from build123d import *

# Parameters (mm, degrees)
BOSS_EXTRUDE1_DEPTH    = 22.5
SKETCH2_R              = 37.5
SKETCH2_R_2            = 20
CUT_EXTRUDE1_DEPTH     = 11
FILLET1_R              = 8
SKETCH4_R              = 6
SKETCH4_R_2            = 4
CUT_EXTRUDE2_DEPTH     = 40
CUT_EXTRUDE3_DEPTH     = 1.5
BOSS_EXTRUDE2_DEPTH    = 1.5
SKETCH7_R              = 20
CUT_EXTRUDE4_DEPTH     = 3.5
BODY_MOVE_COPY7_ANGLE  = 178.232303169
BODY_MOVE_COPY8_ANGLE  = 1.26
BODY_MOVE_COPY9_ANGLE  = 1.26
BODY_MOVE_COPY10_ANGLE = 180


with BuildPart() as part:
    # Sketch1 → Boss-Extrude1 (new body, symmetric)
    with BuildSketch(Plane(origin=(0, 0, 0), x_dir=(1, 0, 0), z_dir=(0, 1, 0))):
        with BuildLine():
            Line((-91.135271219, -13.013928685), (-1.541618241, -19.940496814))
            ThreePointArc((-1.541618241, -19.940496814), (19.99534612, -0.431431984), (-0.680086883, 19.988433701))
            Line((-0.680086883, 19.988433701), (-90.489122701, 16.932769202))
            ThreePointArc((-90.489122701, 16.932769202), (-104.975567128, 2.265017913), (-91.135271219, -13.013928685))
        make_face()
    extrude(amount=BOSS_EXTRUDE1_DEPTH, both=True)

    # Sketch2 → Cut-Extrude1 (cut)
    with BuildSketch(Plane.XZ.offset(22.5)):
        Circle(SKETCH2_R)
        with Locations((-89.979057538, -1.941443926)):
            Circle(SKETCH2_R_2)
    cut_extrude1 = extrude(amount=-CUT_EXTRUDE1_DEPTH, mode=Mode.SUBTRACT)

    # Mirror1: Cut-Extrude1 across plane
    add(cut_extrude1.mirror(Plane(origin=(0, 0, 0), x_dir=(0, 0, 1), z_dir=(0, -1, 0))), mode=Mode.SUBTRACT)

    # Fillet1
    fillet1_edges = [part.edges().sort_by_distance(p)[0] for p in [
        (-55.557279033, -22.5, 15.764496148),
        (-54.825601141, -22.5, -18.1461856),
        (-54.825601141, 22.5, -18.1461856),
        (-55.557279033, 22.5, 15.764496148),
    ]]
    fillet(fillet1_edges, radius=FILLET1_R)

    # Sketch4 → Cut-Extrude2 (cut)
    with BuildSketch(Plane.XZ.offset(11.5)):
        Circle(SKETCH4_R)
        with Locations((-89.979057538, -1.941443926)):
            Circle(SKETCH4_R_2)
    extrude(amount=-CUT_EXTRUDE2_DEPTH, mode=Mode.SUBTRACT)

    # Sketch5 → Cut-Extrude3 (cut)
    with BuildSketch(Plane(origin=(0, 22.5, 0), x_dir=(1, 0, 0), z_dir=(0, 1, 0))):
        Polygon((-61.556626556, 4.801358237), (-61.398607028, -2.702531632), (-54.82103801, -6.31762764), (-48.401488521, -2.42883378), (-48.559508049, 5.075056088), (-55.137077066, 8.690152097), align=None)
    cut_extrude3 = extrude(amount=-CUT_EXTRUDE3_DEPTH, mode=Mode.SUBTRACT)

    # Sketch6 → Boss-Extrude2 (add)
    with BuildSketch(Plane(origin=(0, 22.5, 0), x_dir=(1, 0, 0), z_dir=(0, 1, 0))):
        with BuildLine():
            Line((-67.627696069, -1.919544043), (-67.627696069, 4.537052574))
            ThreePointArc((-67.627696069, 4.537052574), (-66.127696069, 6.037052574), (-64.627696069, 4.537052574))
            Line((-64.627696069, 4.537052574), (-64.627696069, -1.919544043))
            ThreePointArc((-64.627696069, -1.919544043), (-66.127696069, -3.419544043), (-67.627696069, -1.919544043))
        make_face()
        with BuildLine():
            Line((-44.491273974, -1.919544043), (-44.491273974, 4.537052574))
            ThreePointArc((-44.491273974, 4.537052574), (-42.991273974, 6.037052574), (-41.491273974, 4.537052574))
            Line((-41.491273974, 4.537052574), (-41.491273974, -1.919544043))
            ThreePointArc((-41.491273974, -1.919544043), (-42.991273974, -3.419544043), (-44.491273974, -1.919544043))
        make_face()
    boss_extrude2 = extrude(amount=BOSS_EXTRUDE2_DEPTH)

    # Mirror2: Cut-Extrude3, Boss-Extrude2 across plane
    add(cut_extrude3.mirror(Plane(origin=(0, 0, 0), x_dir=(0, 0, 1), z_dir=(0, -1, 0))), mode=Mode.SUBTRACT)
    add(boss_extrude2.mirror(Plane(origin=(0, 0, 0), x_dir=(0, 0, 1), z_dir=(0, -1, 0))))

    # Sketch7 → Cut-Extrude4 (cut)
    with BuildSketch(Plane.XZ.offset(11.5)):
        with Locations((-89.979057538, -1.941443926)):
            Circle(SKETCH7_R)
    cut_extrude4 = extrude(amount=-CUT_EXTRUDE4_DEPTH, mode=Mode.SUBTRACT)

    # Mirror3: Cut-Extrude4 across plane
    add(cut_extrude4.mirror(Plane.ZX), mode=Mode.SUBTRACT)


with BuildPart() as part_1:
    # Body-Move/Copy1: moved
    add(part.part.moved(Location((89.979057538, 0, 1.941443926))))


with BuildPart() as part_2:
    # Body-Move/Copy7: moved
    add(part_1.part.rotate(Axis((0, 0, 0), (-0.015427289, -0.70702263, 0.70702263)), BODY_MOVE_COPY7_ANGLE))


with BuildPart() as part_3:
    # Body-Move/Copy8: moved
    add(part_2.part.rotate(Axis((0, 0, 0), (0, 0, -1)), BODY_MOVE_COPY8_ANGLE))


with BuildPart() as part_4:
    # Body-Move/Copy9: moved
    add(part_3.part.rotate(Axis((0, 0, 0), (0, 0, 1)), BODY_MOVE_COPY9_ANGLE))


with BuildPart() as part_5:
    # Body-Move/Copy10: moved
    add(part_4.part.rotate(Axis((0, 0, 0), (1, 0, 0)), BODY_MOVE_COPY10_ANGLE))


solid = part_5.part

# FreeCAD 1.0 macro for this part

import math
import FreeCAD as App
import Part
import Sketcher
from FreeCAD import Vector
Q = App.Units.Quantity


def edges_at(feature, points):
    """Names of the edges that pass closest to the given points."""
    edges = feature.Shape.Edges
    near = lambda p: min(range(len(edges)), key=lambda i: edges[i].distToShape(Part.Vertex(*p))[0])
    return sorted({f"Edge{near(p) + 1}" for p in points})


def add_polygon(sketch, points):
    """Adds a closed chain of lines whose ends are joined by coincident constraints."""
    first, n = sketch.GeometryCount, len(points)
    for a, b in zip(points, points[1:] + points[:1]):
        sketch.addGeometry(Part.LineSegment(App.Vector(*a, 0), App.Vector(*b, 0)), False)
    for i in range(n):
        sketch.addConstraint(Sketcher.Constraint("Coincident", first + i, 2, first + (i + 1) % n, 1))

doc = App.newDocument("Part")
body = doc.addObject("PartDesign::Body", "Body")

# Sketch on XZ plane
sketch1 = doc.addObject("Sketcher::SketchObject", "Sketch")
body.addObject(sketch1)
sketch1.AttachmentSupport = (doc.XZ_Plane, [""])
sketch1.MapMode = "FlatFace"
sketch1.addGeometry(Part.LineSegment(Vector(-91.135271, 13.013929, 0), Vector(-1.541618, 19.940497, 0)), False)
sketch1.addGeometry(Part.ArcOfCircle(Part.Circle(Vector(0, 0, 0), Vector(0, 0, 1), 20), math.radians(-91.948681), math.radians(94.420796)), False)
sketch1.addGeometry(Part.LineSegment(Vector(-0.680087, -19.988434, 0), Vector(-90.489123, -16.932769, 0)), False)
sketch1.addGeometry(Part.ArcOfCircle(Part.Circle(Vector(-89.979058, -1.941444, 0), Vector(0, 0, 1), 15), math.radians(94.420796), math.radians(268.051319)), False)
sketch1.addConstraint(Sketcher.Constraint("Tangent", 0, 2, 1, 2))
sketch1.addConstraint(Sketcher.Constraint("Tangent", 1, 1, 2, 1))
sketch1.addConstraint(Sketcher.Constraint("Tangent", 2, 2, 3, 2))
sketch1.addConstraint(Sketcher.Constraint("Tangent", 3, 1, 0, 1))
sketch1.addConstraint(Sketcher.Constraint("Coincident", 1, 3, -1, 1))
sketch1.addConstraint(Sketcher.Constraint("Radius", 1, Q("20 mm")))
sketch1.addConstraint(Sketcher.Constraint("Radius", 3, Q("15 mm")))
sketch1.addConstraint(Sketcher.Constraint("DistanceX", 0, 2, -1, 1, Q("1.541618 mm")))
sketch1.addConstraint(Sketcher.Constraint("DistanceY", 2, 2, -1, 1, Q("16.932769 mm")))
pad1 = doc.addObject("PartDesign::Pad", "Pad")
body.addObject(pad1)
pad1.Profile = sketch1
pad1.Length = 45
pad1.Midplane = True

# Sketch on XZ plane
sketch2 = doc.addObject("Sketcher::SketchObject", "Sketch001")
body.addObject(sketch2)
sketch2.AttachmentSupport = (doc.XZ_Plane, [""])
sketch2.MapMode = "FlatFace"
sketch2.AttachmentOffset = App.Placement(Vector(0, 0, 22.5), App.Rotation())
sketch2.addGeometry(Part.Circle(Vector(0, 0, 0), Vector(0, 0, 1), 37.5), False)
sketch2.addGeometry(Part.Circle(Vector(-89.979058, -1.941444, 0), Vector(0, 0, 1), 20), False)
sketch2.addConstraint(Sketcher.Constraint("Coincident", 0, 3, -1, 1))
sketch2.addConstraint(Sketcher.Constraint("Diameter", 0, Q("75 mm")))
sketch2.addConstraint(Sketcher.Constraint("Diameter", 1, Q("40 mm")))
sketch2.addConstraint(Sketcher.Constraint("DistanceX", 1, 3, -1, 1, Q("89.979058 mm")))
sketch2.addConstraint(Sketcher.Constraint("DistanceY", 1, 3, -1, 1, Q("1.941444 mm")))
pocket1 = doc.addObject("PartDesign::Pocket", "Pocket")
body.addObject(pocket1)
pocket1.Profile = sketch2
pocket1.Length = 11
doc.recompute()

mirrored = doc.addObject("PartDesign::Mirrored", "Mirrored")
body.addObject(mirrored)
mirrored.Originals = [pocket1]
mirrored.MirrorPlane = (doc.XZ_Plane, [""])
body.Tip = mirrored
doc.recompute()

fillet = doc.addObject("PartDesign::Fillet", "Fillet")
body.addObject(fillet)
fillet.Base = (mirrored, edges_at(mirrored, [
    (-55.557, -22.5, 15.764),
    (-54.826, -22.5, -18.146),
    (-54.826, 22.5, -18.146),
    (-55.557, 22.5, 15.764),
]))
fillet.Radius = 8

# Sketch on XZ plane
sketch3 = doc.addObject("Sketcher::SketchObject", "Sketch002")
body.addObject(sketch3)
sketch3.AttachmentSupport = (doc.XZ_Plane, [""])
sketch3.MapMode = "FlatFace"
sketch3.AttachmentOffset = App.Placement(Vector(0, 0, 11.5), App.Rotation())
sketch3.addGeometry(Part.Circle(Vector(0, 0, 0), Vector(0, 0, 1), 6), False)
sketch3.addGeometry(Part.Circle(Vector(-89.979058, -1.941444, 0), Vector(0, 0, 1), 4), False)
sketch3.addConstraint(Sketcher.Constraint("Coincident", 0, 3, -1, 1))
sketch3.addConstraint(Sketcher.Constraint("Diameter", 0, Q("12 mm")))
sketch3.addConstraint(Sketcher.Constraint("Diameter", 1, Q("8 mm")))
sketch3.addConstraint(Sketcher.Constraint("DistanceX", 1, 3, -1, 1, Q("89.979058 mm")))
sketch3.addConstraint(Sketcher.Constraint("DistanceY", 1, 3, -1, 1, Q("1.941444 mm")))
pocket2 = doc.addObject("PartDesign::Pocket", "Pocket001")
body.addObject(pocket2)
pocket2.Profile = sketch3
pocket2.Length = 40

# Sketch on XZ plane
sketch4 = doc.addObject("Sketcher::SketchObject", "Sketch003")
body.addObject(sketch4)
sketch4.AttachmentSupport = (doc.XZ_Plane, [""])
sketch4.MapMode = "FlatFace"
sketch4.AttachmentOffset = App.Placement(Vector(0, 0, -22.5), App.Rotation())
add_polygon(sketch4, [(-61.556627, -4.801358), (-61.398607, 2.702532), (-54.821038, 6.317628), (-48.401489, 2.428834), (-48.559508, -5.075056), (-55.137077, -8.690152)])  # lines 0-5
sketch4.addConstraint(Sketcher.Constraint("Parallel", 0, 3))
sketch4.addConstraint(Sketcher.Constraint("Parallel", 1, 4))
sketch4.addConstraint(Sketcher.Constraint("Parallel", 2, 5))
sketch4.addConstraint(Sketcher.Constraint("Equal", 0, 1))
sketch4.addConstraint(Sketcher.Constraint("Equal", 1, 2))
sketch4.addConstraint(Sketcher.Constraint("Equal", 2, 3))
sketch4.addConstraint(Sketcher.Constraint("DistanceX", 0, 2, 3, 2, Q("12.839099 mm")))
sketch4.addConstraint(Sketcher.Constraint("DistanceY", -1, 1, 0, 2, Q("2.702532 mm")))
sketch4.addConstraint(Sketcher.Constraint("DistanceX", 1, 2, -1, 1, Q("54.821038 mm")))
sketch4.addConstraint(Sketcher.Constraint("DistanceX", 2, 2, -1, 1, Q("48.401489 mm")))
sketch4.addConstraint(Sketcher.Constraint("DistanceX", 3, 2, -1, 1, Q("48.559508 mm")))
sketch4.addConstraint(Sketcher.Constraint("DistanceY", 5, 2, -1, 1, Q("4.801358 mm")))
pocket3 = doc.addObject("PartDesign::Pocket", "Pocket002")
body.addObject(pocket3)
pocket3.Profile = sketch4
pocket3.Length = 1.5
pocket3.Reversed = True

# Sketch on XZ plane
sketch5 = doc.addObject("Sketcher::SketchObject", "Sketch004")
body.addObject(sketch5)
sketch5.AttachmentSupport = (doc.XZ_Plane, [""])
sketch5.MapMode = "FlatFace"
sketch5.AttachmentOffset = App.Placement(Vector(0, 0, -22.5), App.Rotation())
sketch5.addGeometry(Part.LineSegment(Vector(-67.627696, -4.537053, 0), Vector(-67.627696, 1.919544, 0)), False)
sketch5.addGeometry(Part.ArcOfCircle(Part.Circle(Vector(-66.127696, 1.919544, 0), Vector(0, 0, 1), 1.5), math.radians(0), math.radians(180)), False)
sketch5.addGeometry(Part.LineSegment(Vector(-64.627696, 1.919544, 0), Vector(-64.627696, -4.537053, 0)), False)
sketch5.addGeometry(Part.ArcOfCircle(Part.Circle(Vector(-66.127696, -4.537053, 0), Vector(0, 0, 1), 1.5), math.radians(180), math.radians(360)), False)
sketch5.addGeometry(Part.LineSegment(Vector(-44.491274, -4.537053, 0), Vector(-44.491274, 1.919544, 0)), False)
sketch5.addGeometry(Part.ArcOfCircle(Part.Circle(Vector(-42.991274, 1.919544, 0), Vector(0, 0, 1), 1.5), math.radians(0), math.radians(180)), False)
sketch5.addGeometry(Part.LineSegment(Vector(-41.491274, 1.919544, 0), Vector(-41.491274, -4.537053, 0)), False)
sketch5.addGeometry(Part.ArcOfCircle(Part.Circle(Vector(-42.991274, -4.537053, 0), Vector(0, 0, 1), 1.5), math.radians(180), math.radians(360)), False)
sketch5.addConstraint(Sketcher.Constraint("Tangent", 0, 2, 1, 2))
sketch5.addConstraint(Sketcher.Constraint("Tangent", 1, 1, 2, 1))
sketch5.addConstraint(Sketcher.Constraint("Tangent", 2, 2, 3, 2))
sketch5.addConstraint(Sketcher.Constraint("Tangent", 3, 1, 0, 1))
sketch5.addConstraint(Sketcher.Constraint("Tangent", 4, 2, 5, 2))
sketch5.addConstraint(Sketcher.Constraint("Tangent", 5, 1, 6, 1))
sketch5.addConstraint(Sketcher.Constraint("Tangent", 6, 2, 7, 2))
sketch5.addConstraint(Sketcher.Constraint("Tangent", 7, 1, 4, 1))
sketch5.addConstraint(Sketcher.Constraint("Vertical", 0))
sketch5.addConstraint(Sketcher.Constraint("Vertical", 2))
sketch5.addConstraint(Sketcher.Constraint("Vertical", 4))
sketch5.addConstraint(Sketcher.Constraint("Vertical", 6))
sketch5.addConstraint(Sketcher.Constraint("Equal", 3, 5))
sketch5.addConstraint(Sketcher.Constraint("Horizontal", 1, 3, 5, 3))
sketch5.addConstraint(Sketcher.Constraint("Horizontal", 3, 3, 7, 3))
sketch5.addConstraint(Sketcher.Constraint("Radius", 1, Q("1.5 mm")))
sketch5.addConstraint(Sketcher.Constraint("DistanceY", 0, 1, 0, 2, Q("6.456597 mm")))
sketch5.addConstraint(Sketcher.Constraint("DistanceX", 1, 3, -1, 1, Q("66.127696 mm")))
sketch5.addConstraint(Sketcher.Constraint("DistanceY", -1, 1, 1, 3, Q("1.919544 mm")))
sketch5.addConstraint(Sketcher.Constraint("DistanceX", 5, 3, -1, 1, Q("42.991274 mm")))
pad2 = doc.addObject("PartDesign::Pad", "Pad001")
body.addObject(pad2)
pad2.Profile = sketch5
pad2.Length = 1.5
pad2.Reversed = True
doc.recompute()

mirrored2 = doc.addObject("PartDesign::Mirrored", "Mirrored001")
body.addObject(mirrored2)
mirrored2.Originals = [pocket3, pad2]
mirrored2.MirrorPlane = (doc.XZ_Plane, [""])
body.Tip = mirrored2

# Sketch on XZ plane
sketch6 = doc.addObject("Sketcher::SketchObject", "Sketch005")
body.addObject(sketch6)
sketch6.AttachmentSupport = (doc.XZ_Plane, [""])
sketch6.MapMode = "FlatFace"
sketch6.AttachmentOffset = App.Placement(Vector(0, 0, 11.5), App.Rotation())
sketch6.addGeometry(Part.Circle(Vector(-89.979058, -1.941444, 0), Vector(0, 0, 1), 20), False)
sketch6.addConstraint(Sketcher.Constraint("Diameter", 0, Q("40 mm")))
sketch6.addConstraint(Sketcher.Constraint("DistanceX", 0, 3, -1, 1, Q("89.979058 mm")))
sketch6.addConstraint(Sketcher.Constraint("DistanceY", 0, 3, -1, 1, Q("1.941444 mm")))
pocket4 = doc.addObject("PartDesign::Pocket", "Pocket003")
body.addObject(pocket4)
pocket4.Profile = sketch6
pocket4.Length = 3.5
doc.recompute()

mirrored3 = doc.addObject("PartDesign::Mirrored", "Mirrored002")
body.addObject(mirrored3)
mirrored3.Originals = [pocket4]
mirrored3.MirrorPlane = (doc.XZ_Plane, [""])
body.Tip = mirrored3
body2 = doc.addObject("PartDesign::Body", "Body001")
doc.recompute()

body.Placement = App.Placement(Vector(89.979058, 0, 1.941444), App.Rotation(Vector(0, 0, 1), 0))
boolean = doc.addObject("PartDesign::Boolean", "Boolean")
body2.addObject(boolean)
boolean.Type = "Fuse"
boolean.addObjects([body])
body3 = doc.addObject("PartDesign::Body", "Body002")
doc.recompute()

body2.Placement = App.Placement(Vector(0, 0, 0), App.Rotation(Vector(-0.015427289, -0.70702263, 0.70702263), 178.232303))
boolean2 = doc.addObject("PartDesign::Boolean", "Boolean001")
body3.addObject(boolean2)
boolean2.Type = "Fuse"
boolean2.addObjects([body2])
body4 = doc.addObject("PartDesign::Body", "Body003")
doc.recompute()

body3.Placement = App.Placement(Vector(0, 0, 0), App.Rotation(Vector(0, 0, -1), 1.26))
boolean3 = doc.addObject("PartDesign::Boolean", "Boolean002")
body4.addObject(boolean3)
boolean3.Type = "Fuse"
boolean3.addObjects([body3])
body5 = doc.addObject("PartDesign::Body", "Body004")
doc.recompute()

body4.Placement = App.Placement(Vector(0, 0, 0), App.Rotation(Vector(0, 0, 1), 1.26))
boolean4 = doc.addObject("PartDesign::Boolean", "Boolean003")
body5.addObject(boolean4)
boolean4.Type = "Fuse"
boolean4.addObjects([body4])
body6 = doc.addObject("PartDesign::Body", "Body005")
doc.recompute()

body5.Placement = App.Placement(Vector(0, 0, 0), App.Rotation(Vector(1, 0, 0), 180))
boolean5 = doc.addObject("PartDesign::Boolean", "Boolean004")
body6.addObject(boolean5)
boolean5.Type = "Fuse"
boolean5.addObjects([body5])

doc.recompute()
